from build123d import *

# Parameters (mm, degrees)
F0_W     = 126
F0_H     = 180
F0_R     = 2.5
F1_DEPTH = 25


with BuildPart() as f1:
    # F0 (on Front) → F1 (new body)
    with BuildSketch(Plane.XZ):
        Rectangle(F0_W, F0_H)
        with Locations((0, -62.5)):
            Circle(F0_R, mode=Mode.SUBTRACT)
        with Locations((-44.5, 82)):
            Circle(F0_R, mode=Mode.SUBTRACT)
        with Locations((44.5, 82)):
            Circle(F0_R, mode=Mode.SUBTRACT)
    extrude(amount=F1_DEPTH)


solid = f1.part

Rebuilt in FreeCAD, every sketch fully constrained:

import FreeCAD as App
import Part
import Sketcher


def add_polygon(sketch, points):
    """Adds a closed chain of lines whose ends are joined by coincident constraints."""
    first, n = sketch.GeometryCount, len(points)
    for a, b in zip(points, points[1:] + points[:1]):
        sketch.addGeometry(Part.LineSegment(App.Vector(*a, 0), App.Vector(*b, 0)), False)
    for i in range(n):
        sketch.addConstraint(Sketcher.Constraint("Coincident", first + i, 2, first + (i + 1) % n, 1))

doc = App.newDocument("Part")
body = doc.addObject("PartDesign::Body", "Body")

# Sketch on XZ plane
sketch1 = doc.addObject("Sketcher::SketchObject", "Sketch")
body.addObject(sketch1)
sketch1.AttachmentSupport = (doc.XZ_Plane, [""])
sketch1.MapMode = "FlatFace"
add_polygon(sketch1, [(-63, 90), (-63, -90), (63, -90), (63, 90)])  # lines 0-3
sketch1.addGeometry(Part.Circle(App.Vector(0, -62.5, 0), App.Vector(0, 0, 1), 2.5), False)  # 4
sketch1.addGeometry(Part.Circle(App.Vector(-44.5, 82, 0), App.Vector(0, 0, 1), 2.5), False)  # 5
sketch1.addGeometry(Part.Circle(App.Vector(44.5, 82, 0), App.Vector(0, 0, 1), 2.5), False)  # 6
sketch1.addConstraint([
    Sketcher.Constraint("Vertical", 0),
    Sketcher.Constraint("Horizontal", 1),
    Sketcher.Constraint("Vertical", 2),
    Sketcher.Constraint("Horizontal", 3),
    Sketcher.Constraint("Equal", 4, 5),
    Sketcher.Constraint("Equal", 5, 6),
    Sketcher.Constraint("Symmetric", 0, 2, 2, 2, -1, 1),
    Sketcher.Constraint("Symmetric", 5, 3, 6, 3, -2),
    Sketcher.Constraint("PointOnObject", 4, 3, -2),
    Sketcher.Constraint("Diameter", 4, 5.0),
    Sketcher.Constraint("DistanceX", 1, 1, 1, 2, 126.0),
    Sketcher.Constraint("DistanceY", 0, 2, 0, 1, 180.0),
    Sketcher.Constraint("DistanceY", -1, 1, 5, 3, 82.0),
    Sketcher.Constraint("DistanceX", 5, 3, 6, 3, 89.0),
    Sketcher.Constraint("DistanceY", 4, 3, -1, 1, 62.5),
])
pad1 = doc.addObject("PartDesign::Pad", "Pad")
body.addObject(pad1)
pad1.Profile = sketch1
pad1.Length = 25

doc.recompute()
